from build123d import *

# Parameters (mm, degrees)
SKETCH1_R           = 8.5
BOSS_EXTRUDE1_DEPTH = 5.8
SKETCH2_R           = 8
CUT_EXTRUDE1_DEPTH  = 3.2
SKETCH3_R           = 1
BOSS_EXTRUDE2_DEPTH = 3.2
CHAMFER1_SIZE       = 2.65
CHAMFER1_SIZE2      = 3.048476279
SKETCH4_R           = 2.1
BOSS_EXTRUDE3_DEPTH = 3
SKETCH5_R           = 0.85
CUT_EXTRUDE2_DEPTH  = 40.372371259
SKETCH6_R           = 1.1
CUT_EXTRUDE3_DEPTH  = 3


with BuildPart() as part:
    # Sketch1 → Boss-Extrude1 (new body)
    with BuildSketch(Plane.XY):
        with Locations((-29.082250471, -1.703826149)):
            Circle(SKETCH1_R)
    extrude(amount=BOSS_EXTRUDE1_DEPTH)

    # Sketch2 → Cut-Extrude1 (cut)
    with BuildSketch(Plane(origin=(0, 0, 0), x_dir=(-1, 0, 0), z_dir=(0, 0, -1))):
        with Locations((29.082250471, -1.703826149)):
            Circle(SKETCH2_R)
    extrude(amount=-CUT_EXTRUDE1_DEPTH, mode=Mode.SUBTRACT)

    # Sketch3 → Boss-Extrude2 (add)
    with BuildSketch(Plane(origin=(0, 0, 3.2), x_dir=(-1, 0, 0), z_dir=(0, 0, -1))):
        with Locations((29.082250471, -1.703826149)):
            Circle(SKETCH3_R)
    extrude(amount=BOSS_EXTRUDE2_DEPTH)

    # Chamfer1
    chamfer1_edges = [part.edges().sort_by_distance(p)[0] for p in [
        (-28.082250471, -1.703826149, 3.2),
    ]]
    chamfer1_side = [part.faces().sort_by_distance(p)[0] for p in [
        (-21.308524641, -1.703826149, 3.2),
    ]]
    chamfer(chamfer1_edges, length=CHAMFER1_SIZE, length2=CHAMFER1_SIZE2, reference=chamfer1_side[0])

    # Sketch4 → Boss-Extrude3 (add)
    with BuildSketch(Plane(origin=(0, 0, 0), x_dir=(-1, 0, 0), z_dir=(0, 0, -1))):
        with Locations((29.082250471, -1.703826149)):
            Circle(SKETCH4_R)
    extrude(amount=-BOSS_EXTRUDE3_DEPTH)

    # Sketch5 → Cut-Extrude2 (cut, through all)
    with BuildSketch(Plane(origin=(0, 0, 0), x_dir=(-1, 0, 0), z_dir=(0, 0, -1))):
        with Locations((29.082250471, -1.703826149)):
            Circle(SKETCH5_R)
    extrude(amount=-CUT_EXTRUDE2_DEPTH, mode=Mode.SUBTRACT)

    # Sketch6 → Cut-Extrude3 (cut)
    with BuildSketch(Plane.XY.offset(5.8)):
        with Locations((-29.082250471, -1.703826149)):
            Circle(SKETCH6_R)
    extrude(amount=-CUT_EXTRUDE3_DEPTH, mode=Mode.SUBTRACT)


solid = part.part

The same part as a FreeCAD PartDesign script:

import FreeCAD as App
import Part
import Sketcher

V = App.Vector
Q = App.Units.Quantity


def edges_at(feature, points):
    """Names of the edges that pass closest to the given points."""
    edges = feature.Shape.Edges
    near = lambda p: min(range(len(edges)), key=lambda i: edges[i].distToShape(Part.Vertex(*p))[0])
    return sorted({f"Edge{near(p) + 1}" for p in points})

doc = App.newDocument("Part")
body = doc.addObject("PartDesign::Body", "Body")

# Sketch on XY plane
sketch1 = body.newObject("Sketcher::SketchObject", "Sketch")
sketch1.AttachmentSupport = (doc.getObject("XY_Plane"), [""])
sketch1.MapMode = "FlatFace"
sketch1.addGeometry(Part.Circle(V(-29, -2, 0), V(0, 0, 1), 8), False)
sketch1.addConstraint(Sketcher.Constraint("Diameter", 0, Q("17 mm")))
sketch1.addConstraint(Sketcher.Constraint("DistanceX", 0, 3, -1, 1, Q("29.08225 mm")))
sketch1.addConstraint(Sketcher.Constraint("DistanceY", 0, 3, -1, 1, Q("1.703826 mm")))
pad1 = body.newObject("PartDesign::Pad", "Pad")
pad1.Profile = sketch1
pad1.Length = 5.8

# Sketch on XY plane
sketch2 = body.newObject("Sketcher::SketchObject", "Sketch001")
sketch2.AttachmentSupport = (doc.getObject("XY_Plane"), [""])
sketch2.MapMode = "FlatFace"
sketch2.addGeometry(Part.Circle(V(-29, -2, 0), V(0, 0, 1), 8), False)
sketch2.addConstraint(Sketcher.Constraint("Diameter", 0, Q("16 mm")))
sketch2.addConstraint(Sketcher.Constraint("DistanceX", 0, 3, -1, 1, Q("29.08225 mm")))
sketch2.addConstraint(Sketcher.Constraint("DistanceY", 0, 3, -1, 1, Q("1.703826 mm")))
pocket1 = body.newObject("PartDesign::Pocket", "Pocket")
pocket1.Profile = sketch2
pocket1.Length = 3.2
pocket1.Reversed = True

# Sketch on XY plane
sketch3 = body.newObject("Sketcher::SketchObject", "Sketch002")
sketch3.AttachmentSupport = (doc.getObject("XY_Plane"), [""])
sketch3.MapMode = "FlatFace"
sketch3.AttachmentOffset = App.Placement(V(0, 0, 3.2), App.Rotation())
sketch3.addGeometry(Part.Circle(V(-29.1, -1.7, 0), V(0, 0, 1), 1), False)
sketch3.addConstraint(Sketcher.Constraint("Diameter", 0, Q("2 mm")))
sketch3.addConstraint(Sketcher.Constraint("DistanceX", 0, 3, -1, 1, Q("29.08225 mm")))
sketch3.addConstraint(Sketcher.Constraint("DistanceY", 0, 3, -1, 1, Q("1.703826 mm")))
pad2 = body.newObject("PartDesign::Pad", "Pad001")
pad2.Profile = sketch3
pad2.Length = 3.2
pad2.Reversed = True
doc.recompute()

chamfer = body.newObject("PartDesign::Chamfer", "Chamfer")
chamfer.Base = (pad2, edges_at(pad2, [(-28.082, -1.704, 3.2)]))
chamfer.ChamferType = "Two distances"
chamfer.Size = 2.65
chamfer.Size2 = 3.048476

# Sketch on XY plane
sketch4 = body.newObject("Sketcher::SketchObject", "Sketch003")
sketch4.AttachmentSupport = (doc.getObject("XY_Plane"), [""])
sketch4.MapMode = "FlatFace"
sketch4.addGeometry(Part.Circle(V(-29.1, -1.7, 0), V(0, 0, 1), 2.1), False)
sketch4.addConstraint(Sketcher.Constraint("Diameter", 0, Q("4.2 mm")))
sketch4.addConstraint(Sketcher.Constraint("DistanceX", 0, 3, -1, 1, Q("29.08225 mm")))
sketch4.addConstraint(Sketcher.Constraint("DistanceY", 0, 3, -1, 1, Q("1.703826 mm")))
pad3 = body.newObject("PartDesign::Pad", "Pad002")
pad3.Profile = sketch4
pad3.Length = 3

# Sketch on XY plane
sketch5 = body.newObject("Sketcher::SketchObject", "Sketch004")
sketch5.AttachmentSupport = (doc.getObject("XY_Plane"), [""])
sketch5.MapMode = "FlatFace"
sketch5.addGeometry(Part.Circle(V(-29.1, -1.7, 0), V(0, 0, 1), 0.8), False)
sketch5.addConstraint(Sketcher.Constraint("Diameter", 0, Q("1.7 mm")))
sketch5.addConstraint(Sketcher.Constraint("DistanceX", 0, 3, -1, 1, Q("29.08225 mm")))
sketch5.addConstraint(Sketcher.Constraint("DistanceY", 0, 3, -1, 1, Q("1.703826 mm")))
pocket2 = body.newObject("PartDesign::Pocket", "Pocket001")
pocket2.Profile = sketch5
pocket2.Type = "ThroughAll"
pocket2.Reversed = True

# Sketch on XY plane
sketch6 = body.newObject("Sketcher::SketchObject", "Sketch005")
sketch6.AttachmentSupport = (doc.getObject("XY_Plane"), [""])
sketch6.MapMode = "FlatFace"
sketch6.AttachmentOffset = App.Placement(V(0, 0, 5.8), App.Rotation())
sketch6.addGeometry(Part.Circle(V(-29.1, -1.7, 0), V(0, 0, 1), 1.1), False)
sketch6.addConstraint(Sketcher.Constraint("Diameter", 0, Q("2.2 mm")))
sketch6.addConstraint(Sketcher.Constraint("DistanceX", 0, 3, -1, 1, Q("29.08225 mm")))
sketch6.addConstraint(Sketcher.Constraint("DistanceY", 0, 3, -1, 1, Q("1.703826 mm")))
pocket3 = body.newObject("PartDesign::Pocket", "Pocket002")
pocket3.Profile = sketch6
pocket3.Length = 3

doc.recompute()
